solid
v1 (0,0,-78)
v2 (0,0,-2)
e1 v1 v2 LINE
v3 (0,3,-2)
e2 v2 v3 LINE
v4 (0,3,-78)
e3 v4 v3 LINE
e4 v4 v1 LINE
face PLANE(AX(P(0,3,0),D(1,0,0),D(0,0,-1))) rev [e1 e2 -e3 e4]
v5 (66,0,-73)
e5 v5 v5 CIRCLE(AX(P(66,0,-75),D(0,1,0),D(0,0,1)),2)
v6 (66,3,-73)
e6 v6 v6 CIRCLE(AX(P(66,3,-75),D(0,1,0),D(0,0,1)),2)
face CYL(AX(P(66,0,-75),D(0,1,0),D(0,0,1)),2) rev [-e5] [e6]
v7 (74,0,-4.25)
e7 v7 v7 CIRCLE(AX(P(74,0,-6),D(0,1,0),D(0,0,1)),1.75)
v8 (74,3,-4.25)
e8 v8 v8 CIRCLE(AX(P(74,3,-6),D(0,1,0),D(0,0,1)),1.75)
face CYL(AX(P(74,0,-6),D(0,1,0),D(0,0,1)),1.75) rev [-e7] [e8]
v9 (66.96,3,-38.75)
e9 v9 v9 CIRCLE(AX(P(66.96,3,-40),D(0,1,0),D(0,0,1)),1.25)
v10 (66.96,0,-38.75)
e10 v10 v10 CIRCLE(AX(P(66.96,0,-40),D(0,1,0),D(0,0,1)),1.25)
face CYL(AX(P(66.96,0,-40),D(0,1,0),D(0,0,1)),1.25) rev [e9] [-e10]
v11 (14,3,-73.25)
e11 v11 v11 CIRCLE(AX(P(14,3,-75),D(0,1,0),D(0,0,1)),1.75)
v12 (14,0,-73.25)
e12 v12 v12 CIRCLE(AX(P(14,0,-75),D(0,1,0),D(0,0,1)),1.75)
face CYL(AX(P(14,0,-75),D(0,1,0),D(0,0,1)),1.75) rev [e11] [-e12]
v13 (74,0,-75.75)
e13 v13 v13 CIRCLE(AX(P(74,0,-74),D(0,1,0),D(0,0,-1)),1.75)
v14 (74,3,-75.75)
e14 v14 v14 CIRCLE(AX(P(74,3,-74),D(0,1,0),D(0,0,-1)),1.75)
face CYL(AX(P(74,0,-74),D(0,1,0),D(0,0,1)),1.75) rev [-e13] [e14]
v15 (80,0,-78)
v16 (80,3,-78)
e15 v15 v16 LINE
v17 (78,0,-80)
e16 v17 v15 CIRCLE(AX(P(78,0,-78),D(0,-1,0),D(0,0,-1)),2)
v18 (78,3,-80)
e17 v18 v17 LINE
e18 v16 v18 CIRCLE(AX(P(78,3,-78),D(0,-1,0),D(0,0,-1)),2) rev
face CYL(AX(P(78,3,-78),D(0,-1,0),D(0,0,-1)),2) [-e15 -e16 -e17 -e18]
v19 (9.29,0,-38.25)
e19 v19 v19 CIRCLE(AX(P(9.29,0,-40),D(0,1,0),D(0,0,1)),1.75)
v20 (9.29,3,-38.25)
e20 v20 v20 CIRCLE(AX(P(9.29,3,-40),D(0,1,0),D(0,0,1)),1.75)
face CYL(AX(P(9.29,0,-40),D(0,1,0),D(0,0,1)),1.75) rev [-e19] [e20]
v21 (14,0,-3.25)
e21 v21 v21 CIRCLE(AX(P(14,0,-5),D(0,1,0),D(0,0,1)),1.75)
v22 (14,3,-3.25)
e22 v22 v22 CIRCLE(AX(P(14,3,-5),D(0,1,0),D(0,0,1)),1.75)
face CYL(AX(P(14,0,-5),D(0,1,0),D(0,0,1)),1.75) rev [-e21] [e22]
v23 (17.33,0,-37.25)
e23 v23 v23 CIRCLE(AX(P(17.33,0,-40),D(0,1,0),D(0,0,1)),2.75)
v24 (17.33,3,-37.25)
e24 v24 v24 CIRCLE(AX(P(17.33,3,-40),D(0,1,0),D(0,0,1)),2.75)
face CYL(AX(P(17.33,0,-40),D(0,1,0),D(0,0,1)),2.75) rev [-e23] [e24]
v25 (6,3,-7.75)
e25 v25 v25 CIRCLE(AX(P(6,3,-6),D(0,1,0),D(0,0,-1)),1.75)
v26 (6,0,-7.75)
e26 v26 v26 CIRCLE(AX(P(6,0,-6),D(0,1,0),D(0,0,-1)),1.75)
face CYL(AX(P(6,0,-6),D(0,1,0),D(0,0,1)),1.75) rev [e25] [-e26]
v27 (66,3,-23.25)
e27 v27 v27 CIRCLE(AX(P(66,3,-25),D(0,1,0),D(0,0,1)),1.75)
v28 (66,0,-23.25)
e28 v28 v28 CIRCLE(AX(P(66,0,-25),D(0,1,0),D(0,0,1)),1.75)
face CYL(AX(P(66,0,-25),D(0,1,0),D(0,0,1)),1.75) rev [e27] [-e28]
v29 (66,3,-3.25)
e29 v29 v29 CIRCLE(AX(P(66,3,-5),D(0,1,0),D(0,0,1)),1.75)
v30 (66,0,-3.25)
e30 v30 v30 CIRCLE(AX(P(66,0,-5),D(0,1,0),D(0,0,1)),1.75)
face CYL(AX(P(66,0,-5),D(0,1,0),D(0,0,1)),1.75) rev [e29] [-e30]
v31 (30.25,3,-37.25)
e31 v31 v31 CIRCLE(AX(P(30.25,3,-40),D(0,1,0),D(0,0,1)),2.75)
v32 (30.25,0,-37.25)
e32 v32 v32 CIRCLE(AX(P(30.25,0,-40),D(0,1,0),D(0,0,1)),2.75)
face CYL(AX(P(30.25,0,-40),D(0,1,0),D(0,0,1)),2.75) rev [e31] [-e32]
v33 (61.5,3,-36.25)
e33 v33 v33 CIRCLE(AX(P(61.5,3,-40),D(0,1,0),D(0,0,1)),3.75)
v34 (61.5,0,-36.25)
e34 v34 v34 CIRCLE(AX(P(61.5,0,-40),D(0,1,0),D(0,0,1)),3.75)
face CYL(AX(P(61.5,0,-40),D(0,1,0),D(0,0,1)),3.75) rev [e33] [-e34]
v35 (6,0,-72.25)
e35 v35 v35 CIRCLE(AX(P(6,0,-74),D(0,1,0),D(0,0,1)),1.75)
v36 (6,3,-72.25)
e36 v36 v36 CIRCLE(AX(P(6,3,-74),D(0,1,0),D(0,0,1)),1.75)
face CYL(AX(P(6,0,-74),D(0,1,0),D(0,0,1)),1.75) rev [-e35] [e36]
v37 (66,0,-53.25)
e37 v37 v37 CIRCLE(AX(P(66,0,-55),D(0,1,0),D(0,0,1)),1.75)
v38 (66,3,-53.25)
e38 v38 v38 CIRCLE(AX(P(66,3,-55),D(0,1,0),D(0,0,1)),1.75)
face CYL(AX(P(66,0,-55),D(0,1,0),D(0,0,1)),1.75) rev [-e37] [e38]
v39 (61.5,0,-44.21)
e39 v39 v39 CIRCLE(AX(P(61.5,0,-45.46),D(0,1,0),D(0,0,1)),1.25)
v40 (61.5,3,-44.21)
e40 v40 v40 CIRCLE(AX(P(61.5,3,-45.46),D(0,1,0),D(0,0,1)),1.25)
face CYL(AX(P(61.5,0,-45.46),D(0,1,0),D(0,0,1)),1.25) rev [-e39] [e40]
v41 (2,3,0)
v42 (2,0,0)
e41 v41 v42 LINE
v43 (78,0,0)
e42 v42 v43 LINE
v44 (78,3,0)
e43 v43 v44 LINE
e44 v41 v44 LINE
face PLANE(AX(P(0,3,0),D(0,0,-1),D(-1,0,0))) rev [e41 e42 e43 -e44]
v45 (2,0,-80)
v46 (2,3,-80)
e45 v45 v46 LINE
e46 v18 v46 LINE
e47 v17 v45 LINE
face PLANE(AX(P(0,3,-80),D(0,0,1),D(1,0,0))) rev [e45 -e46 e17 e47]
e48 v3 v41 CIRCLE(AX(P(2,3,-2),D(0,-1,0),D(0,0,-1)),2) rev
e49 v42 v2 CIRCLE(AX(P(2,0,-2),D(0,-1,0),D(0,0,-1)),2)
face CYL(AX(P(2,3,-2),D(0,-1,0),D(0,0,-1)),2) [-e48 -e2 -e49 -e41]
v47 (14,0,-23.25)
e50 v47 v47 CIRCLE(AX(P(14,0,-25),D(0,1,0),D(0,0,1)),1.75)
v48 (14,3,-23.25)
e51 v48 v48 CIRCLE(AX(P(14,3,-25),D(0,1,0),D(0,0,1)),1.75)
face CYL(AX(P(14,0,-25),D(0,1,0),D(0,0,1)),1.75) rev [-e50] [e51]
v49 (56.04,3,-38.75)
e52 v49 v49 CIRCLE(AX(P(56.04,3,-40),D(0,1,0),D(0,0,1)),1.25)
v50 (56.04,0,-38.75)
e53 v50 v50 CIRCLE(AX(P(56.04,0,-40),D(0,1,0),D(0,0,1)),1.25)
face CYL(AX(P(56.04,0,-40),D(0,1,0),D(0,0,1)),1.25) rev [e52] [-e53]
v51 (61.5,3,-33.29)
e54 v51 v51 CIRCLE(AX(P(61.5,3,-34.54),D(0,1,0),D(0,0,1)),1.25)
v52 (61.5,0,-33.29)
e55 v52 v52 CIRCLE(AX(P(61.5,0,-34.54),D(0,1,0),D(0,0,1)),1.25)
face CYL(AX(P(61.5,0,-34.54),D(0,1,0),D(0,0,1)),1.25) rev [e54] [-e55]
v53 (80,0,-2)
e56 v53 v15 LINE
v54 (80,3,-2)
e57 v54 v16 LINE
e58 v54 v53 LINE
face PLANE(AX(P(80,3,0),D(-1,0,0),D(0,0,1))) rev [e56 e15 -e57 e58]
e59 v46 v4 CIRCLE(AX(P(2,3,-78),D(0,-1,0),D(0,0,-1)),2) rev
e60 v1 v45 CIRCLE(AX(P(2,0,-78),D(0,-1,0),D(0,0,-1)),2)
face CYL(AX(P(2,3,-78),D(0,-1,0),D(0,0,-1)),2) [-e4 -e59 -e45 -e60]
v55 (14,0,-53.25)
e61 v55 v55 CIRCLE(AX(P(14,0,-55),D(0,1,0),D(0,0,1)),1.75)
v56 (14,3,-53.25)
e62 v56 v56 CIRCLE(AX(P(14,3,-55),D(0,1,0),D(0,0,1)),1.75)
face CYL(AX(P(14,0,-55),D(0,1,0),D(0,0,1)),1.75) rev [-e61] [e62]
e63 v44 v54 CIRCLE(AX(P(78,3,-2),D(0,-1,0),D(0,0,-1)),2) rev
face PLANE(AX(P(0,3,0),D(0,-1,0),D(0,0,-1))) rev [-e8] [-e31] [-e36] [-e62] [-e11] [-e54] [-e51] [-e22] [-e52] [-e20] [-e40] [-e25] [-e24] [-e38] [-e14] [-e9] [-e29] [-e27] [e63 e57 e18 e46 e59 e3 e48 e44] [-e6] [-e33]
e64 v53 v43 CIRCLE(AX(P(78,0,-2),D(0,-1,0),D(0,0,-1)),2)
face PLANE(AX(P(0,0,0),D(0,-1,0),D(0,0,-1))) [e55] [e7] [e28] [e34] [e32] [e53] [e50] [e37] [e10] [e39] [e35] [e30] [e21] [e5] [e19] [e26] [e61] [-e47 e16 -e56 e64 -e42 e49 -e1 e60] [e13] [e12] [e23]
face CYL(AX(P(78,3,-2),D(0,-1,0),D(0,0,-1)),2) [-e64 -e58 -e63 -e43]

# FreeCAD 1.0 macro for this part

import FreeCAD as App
import Part
import Sketcher


def edges_at(feature, points):
    """Names of the edges that pass closest to the given points."""
    edges = feature.Shape.Edges
    near = lambda p: min(range(len(edges)), key=lambda i: edges[i].distToShape(Part.Vertex(*p))[0])
    return sorted({f"Edge{near(p) + 1}" for p in points})


def add_polygon(sketch, points):
    """Adds a closed chain of lines whose ends are joined by coincident constraints."""
    first, n = sketch.GeometryCount, len(points)
    for a, b in zip(points, points[1:] + points[:1]):
        sketch.addGeometry(Part.LineSegment(App.Vector(*a, 0), App.Vector(*b, 0)), False)
    for i in range(n):
        sketch.addConstraint(Sketcher.Constraint("Coincident", first + i, 2, first + (i + 1) % n, 1))

doc = App.newDocument("Part")
params = doc.addObject("Spreadsheet::Sheet", "Params")
for row, (alias, value) in enumerate([
    ("sketch1_width", "80 mm"),
    ("pad1_length", "3 mm"),
    ("sketch2_diameter", "3.5 mm"),
    ("sketch2_diameter2", "5.5 mm"),
    ("sketch3_diameter", "7.5 mm"),
    ("sketch4_diameter", "2.5 mm"),
    ("sketch5_diameter", "5.5 mm"),
    ("sketch6_diameter", "3.5 mm"),
    ("fillet_radius", "2 mm"),
    ("sketch7_diameter", "4 mm"),
    ("sketch7_diameter2", "3.5 mm"),
], start=1):
    params.set(f"A{row}", alias)
    params.set(f"B{row}", "=" + value)
    params.setAlias(f"B{row}", alias)

body = doc.addObject("PartDesign::Body", "Body")

# Sketch on XZ plane
sketch1 = body.newObject("Sketcher::SketchObject", "Sketch")
sketch1.AttachmentSupport = (doc.getObject("XZ_Plane"), [""])
sketch1.MapMode = "FlatFace"
add_polygon(sketch1, [(0, -80), (0, 0), (80, 0), (80, -80)])  # lines 0-3
sketch1.addConstraint([
    Sketcher.Constraint("Vertical", 0),
    Sketcher.Constraint("Horizontal", 1),
    Sketcher.Constraint("Vertical", 2),
    Sketcher.Constraint("Horizontal", 3),
    Sketcher.Constraint("Coincident", 0, 2, -1, 1),
    Sketcher.Constraint("Equal", 3, 0),
    Sketcher.Constraint("DistanceX", 1, 1, 1, 2, 80.0),
])
sketch1.setExpression("Constraints[10]", "Params.sketch1_width")
pad1 = body.newObject("PartDesign::Pad", "Pad")
pad1.Profile = sketch1
pad1.setExpression("Length", "Params.pad1_length")
pad1.Reversed = True

# Sketch on XZ plane
sketch2 = body.newObject("Sketcher::SketchObject", "Sketch001")
sketch2.AttachmentSupport = (doc.getObject("XZ_Plane"), [""])
sketch2.MapMode = "FlatFace"
sketch2.AttachmentOffset = App.Placement(App.Vector(0, 0, -3), App.Rotation())
sketch2.addGeometry([
    Part.Circle(App.Vector(9.3, -40, 0), App.Vector(0, 0, 1), 1.8),
    Part.Circle(App.Vector(17.3, -40, 0), App.Vector(0, 0, 1), 2.8),
], False)
sketch2.addConstraint([
    Sketcher.Constraint("Horizontal", 0, 3, 1, 3),
    Sketcher.Constraint("Diameter", 0, 3.5),
    Sketcher.Constraint("Diameter", 1, 5.5),
    Sketcher.Constraint("DistanceY", 0, 3, -1, 1, 40.0),
    Sketcher.Constraint("DistanceX", -1, 1, 0, 3, 9.29),
    Sketcher.Constraint("DistanceX", -1, 1, 1, 3, 17.33),
])
sketch2.setExpression("Constraints[1]", "Params.sketch2_diameter")
sketch2.setExpression("Constraints[2]", "Params.sketch2_diameter2")
pocket1 = body.newObject("PartDesign::Pocket", "Pocket")
pocket1.Profile = sketch2
pocket1.Type = "ThroughAll"
pocket1.Reversed = True

# Sketch on XZ plane
sketch3 = body.newObject("Sketcher::SketchObject", "Sketch002")
sketch3.AttachmentSupport = (doc.getObject("XZ_Plane"), [""])
sketch3.MapMode = "FlatFace"
sketch3.AttachmentOffset = App.Placement(App.Vector(0, 0, -3), App.Rotation())
sketch3.addGeometry(Part.Circle(App.Vector(61.5, -40, 0), App.Vector(0, 0, 1), 3.8), False)
sketch3.addConstraint([
    Sketcher.Constraint("Diameter", 0, 7.5),
    Sketcher.Constraint("DistanceY", 0, 3, -1, 1, 40.0),
    Sketcher.Constraint("DistanceX", -1, 1, 0, 3, 61.5),
])
sketch3.setExpression("Constraints[0]", "Params.sketch3_diameter")
pocket2 = body.newObject("PartDesign::Pocket", "Pocket001")
pocket2.Profile = sketch3
pocket2.Type = "ThroughAll"
pocket2.Reversed = True

# Sketch on XZ plane
sketch4 = body.newObject("Sketcher::SketchObject", "Sketch003")
sketch4.AttachmentSupport = (doc.getObject("XZ_Plane"), [""])
sketch4.MapMode = "FlatFace"
sketch4.AttachmentOffset = App.Placement(App.Vector(0, 0, -3), App.Rotation())
sketch4.addGeometry([
    Part.Circle(App.Vector(67, -40, 0), App.Vector(0, 0, 1), 1.2),
    Part.Circle(App.Vector(56, -40, 0), App.Vector(0, 0, 1), 1.2),
    Part.Circle(App.Vector(61.5, -34.5, 0), App.Vector(0, 0, 1), 1.2),
    Part.Circle(App.Vector(61.5, -45.5, 0), App.Vector(0, 0, 1), 1.2),
], False)
sketch4.addConstraint([
    Sketcher.Constraint("Equal", 0, 1),
    Sketcher.Constraint("Equal", 1, 2),
    Sketcher.Constraint("Equal", 2, 3),
    Sketcher.Constraint("Horizontal", 0, 3, 1, 3),
    Sketcher.Constraint("Vertical", 2, 3, 3, 3),
    Sketcher.Constraint("Diameter", 0, 2.5),
    Sketcher.Constraint("DistanceY", 0, 3, -1, 1, 40.0),
    Sketcher.Constraint("DistanceX", -1, 1, 2, 3, 61.5),
    Sketcher.Constraint("DistanceX", -1, 1, 0, 3, 66.96),
    Sketcher.Constraint("DistanceX", -1, 1, 1, 3, 56.04),
    Sketcher.Constraint("DistanceY", 2, 3, -1, 1, 34.54),
    Sketcher.Constraint("DistanceY", 3, 3, -1, 1, 45.46),
])
sketch4.setExpression("Constraints[5]", "Params.sketch4_diameter")
pocket3 = body.newObject("PartDesign::Pocket", "Pocket002")
pocket3.Profile = sketch4
pocket3.Type = "ThroughAll"
pocket3.Reversed = True

# Sketch on XZ plane
sketch5 = body.newObject("Sketcher::SketchObject", "Sketch004")
sketch5.AttachmentSupport = (doc.getObject("XZ_Plane"), [""])
sketch5.MapMode = "FlatFace"
sketch5.AttachmentOffset = App.Placement(App.Vector(0, 0, -3), App.Rotation())
sketch5.addGeometry(Part.Circle(App.Vector(30.2, -40, 0), App.Vector(0, 0, 1), 2.8), False)
sketch5.addConstraint([
    Sketcher.Constraint("Diameter", 0, 5.5),
    Sketcher.Constraint("DistanceY", 0, 3, -1, 1, 40.0),
    Sketcher.Constraint("DistanceX", -1, 1, 0, 3, 30.25),
])
sketch5.setExpression("Constraints[0]", "Params.sketch5_diameter")
pocket4 = body.newObject("PartDesign::Pocket", "Pocket003")
pocket4.Profile = sketch5
pocket4.Type = "ThroughAll"
pocket4.Reversed = True

# Sketch on XZ plane
sketch6 = body.newObject("Sketcher::SketchObject", "Sketch005")
sketch6.AttachmentSupport = (doc.getObject("XZ_Plane"), [""])
sketch6.MapMode = "FlatFace"
sketch6.AttachmentOffset = App.Placement(App.Vector(0, 0, -3), App.Rotation())
sketch6.addGeometry([
    Part.Circle(App.Vector(6, -74, 0), App.Vector(0, 0, 1), 1.8),
    Part.Circle(App.Vector(74, -74, 0), App.Vector(0, 0, 1), 1.8),
    Part.Circle(App.Vector(74, -6, 0), App.Vector(0, 0, 1), 1.8),
    Part.Circle(App.Vector(6, -6, 0), App.Vector(0, 0, 1), 1.8),
], False)
sketch6.addConstraint([
    Sketcher.Constraint("Equal", 0, 1),
    Sketcher.Constraint("Equal", 1, 2),
    Sketcher.Constraint("Equal", 2, 3),
    Sketcher.Constraint("Horizontal", 0, 3, 1, 3),
    Sketcher.Constraint("Horizontal", 2, 3, 3, 3),
    Sketcher.Constraint("Vertical", 1, 3, 2, 3),
    Sketcher.Constraint("Vertical", 0, 3, 3, 3),
    Sketcher.Constraint("Diameter", 0, 3.5),
    Sketcher.Constraint("DistanceX", -1, 1, 0, 3, 6.0),
    Sketcher.Constraint("DistanceY", 0, 3, -1, 1, 74.0),
    Sketcher.Constraint("DistanceX", -1, 1, 1, 3, 74.0),
    Sketcher.Constraint("DistanceY", 2, 3, -1, 1, 6.0),
])
sketch6.setExpression("Constraints[7]", "Params.sketch6_diameter")
pocket5 = body.newObject("PartDesign::Pocket", "Pocket004")
pocket5.Profile = sketch6
pocket5.Type = "ThroughAll"
pocket5.Reversed = True
doc.recompute()

fillet = body.newObject("PartDesign::Fillet", "Fillet")
fillet.Base = (pocket5, edges_at(pocket5, [
    (0, 1.5, -80),
    (80, 1.5, -80),
    (80, 1.5, 0),
    (0, 1.5, 0),
]))
fillet.setExpression("Radius", "Params.fillet_radius")

# Sketch on XZ plane
sketch7 = body.newObject("Sketcher::SketchObject", "Sketch006")
sketch7.AttachmentSupport = (doc.getObject("XZ_Plane"), [""])
sketch7.MapMode = "FlatFace"
sketch7.AttachmentOffset = App.Placement(App.Vector(0, 0, -3), App.Rotation())
sketch7.addGeometry([
    Part.Circle(App.Vector(14, -5, 0), App.Vector(0, 0, 1), 1.8),  # 0
    Part.Circle(App.Vector(66, -5, 0), App.Vector(0, 0, 1), 1.8),  # 1
    Part.Circle(App.Vector(66, -25, 0), App.Vector(0, 0, 1), 1.8),  # 2
    Part.Circle(App.Vector(14, -25, 0), App.Vector(0, 0, 1), 1.8),  # 3
    Part.Circle(App.Vector(14, -75, 0), App.Vector(0, 0, 1), 1.8),  # 4
    Part.Circle(App.Vector(14, -55, 0), App.Vector(0, 0, 1), 1.8),  # 5
    Part.Circle(App.Vector(66, -75, 0), App.Vector(0, 0, 1), 2),  # 6
    Part.Circle(App.Vector(66, -55, 0), App.Vector(0, 0, 1), 1.8),  # 7
], False)
sketch7.addConstraint([
    Sketcher.Constraint("Equal", 0, 1),
    Sketcher.Constraint("Equal", 1, 2),
    Sketcher.Constraint("Equal", 2, 3),
    Sketcher.Constraint("Equal", 3, 4),
    Sketcher.Constraint("Equal", 4, 5),
    Sketcher.Constraint("Equal", 5, 7),
    Sketcher.Constraint("Horizontal", 0, 3, 1, 3),
    Sketcher.Constraint("Horizontal", 2, 3, 3, 3),
    Sketcher.Constraint("Horizontal", 4, 3, 6, 3),
    Sketcher.Constraint("Horizontal", 5, 3, 7, 3),
    Sketcher.Constraint("Vertical", 1, 3, 2, 3),
    Sketcher.Constraint("Vertical", 0, 3, 3, 3),
    Sketcher.Constraint("Vertical", 3, 3, 4, 3),
    Sketcher.Constraint("Vertical", 4, 3, 5, 3),
    Sketcher.Constraint("Vertical", 2, 3, 6, 3),
    Sketcher.Constraint("Vertical", 6, 3, 7, 3),
    Sketcher.Constraint("Diameter", 6, 4.0),
    Sketcher.Constraint("Diameter", 0, 3.5),
    Sketcher.Constraint("DistanceX", -1, 1, 0, 3, 14.0),
    Sketcher.Constraint("DistanceY", 0, 3, -1, 1, 5.0),
    Sketcher.Constraint("DistanceX", -1, 1, 1, 3, 66.0),
    Sketcher.Constraint("DistanceY", 2, 3, -1, 1, 25.0),
    Sketcher.Constraint("DistanceY", 4, 3, -1, 1, 75.0),
    Sketcher.Constraint("DistanceY", 5, 3, -1, 1, 55.0),
])
sketch7.setExpression("Constraints[16]", "Params.sketch7_diameter")
sketch7.setExpression("Constraints[17]", "Params.sketch7_diameter2")
pocket6 = body.newObject("PartDesign::Pocket", "Pocket005")
pocket6.Profile = sketch7
pocket6.Type = "ThroughAll"
pocket6.Reversed = True

doc.recompute()
